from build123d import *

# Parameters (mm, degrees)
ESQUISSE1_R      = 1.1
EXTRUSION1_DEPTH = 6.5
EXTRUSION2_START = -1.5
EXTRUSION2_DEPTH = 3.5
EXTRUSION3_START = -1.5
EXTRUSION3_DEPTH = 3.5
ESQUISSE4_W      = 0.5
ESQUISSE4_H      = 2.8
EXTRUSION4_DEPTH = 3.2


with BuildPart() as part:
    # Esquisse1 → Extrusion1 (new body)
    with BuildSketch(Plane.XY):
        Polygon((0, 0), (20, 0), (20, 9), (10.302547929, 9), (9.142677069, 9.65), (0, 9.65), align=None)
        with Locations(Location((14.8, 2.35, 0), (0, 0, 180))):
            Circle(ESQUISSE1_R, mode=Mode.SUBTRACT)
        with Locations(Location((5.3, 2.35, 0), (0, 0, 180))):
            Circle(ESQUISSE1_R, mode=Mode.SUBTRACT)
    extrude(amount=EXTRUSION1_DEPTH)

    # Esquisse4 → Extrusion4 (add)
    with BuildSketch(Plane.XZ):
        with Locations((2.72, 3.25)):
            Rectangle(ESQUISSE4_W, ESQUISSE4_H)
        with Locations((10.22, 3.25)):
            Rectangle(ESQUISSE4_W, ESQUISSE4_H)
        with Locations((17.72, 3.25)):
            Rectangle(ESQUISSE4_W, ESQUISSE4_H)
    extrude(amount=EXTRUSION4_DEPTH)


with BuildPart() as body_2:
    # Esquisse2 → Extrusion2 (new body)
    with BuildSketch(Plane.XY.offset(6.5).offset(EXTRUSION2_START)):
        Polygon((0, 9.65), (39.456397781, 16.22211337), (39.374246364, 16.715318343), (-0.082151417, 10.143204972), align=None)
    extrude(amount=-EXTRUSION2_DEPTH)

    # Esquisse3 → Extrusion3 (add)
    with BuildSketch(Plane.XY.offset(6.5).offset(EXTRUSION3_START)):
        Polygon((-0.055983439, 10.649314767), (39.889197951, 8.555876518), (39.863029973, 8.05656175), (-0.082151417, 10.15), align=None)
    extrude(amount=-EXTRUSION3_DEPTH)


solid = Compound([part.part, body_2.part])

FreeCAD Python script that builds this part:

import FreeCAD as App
import Part
import Sketcher

V = App.Vector
Q = App.Units.Quantity

doc = App.newDocument("Part")
body = doc.addObject("PartDesign::Body", "Body")

# Sketch on XY plane
sketch1 = body.newObject("Sketcher::SketchObject", "Sketch")
sketch1.AttachmentSupport = (doc.getObject("XY_Plane"), [""])
sketch1.MapMode = "FlatFace"
sketch1.addGeometry(Part.LineSegment(V(0, 0, 0), V(20, 0, 0)), False)
sketch1.addGeometry(Part.LineSegment(V(20, 0, 0), V(20, 9, 0)), False)
sketch1.addGeometry(Part.LineSegment(V(20, 9, 0), V(10.3, 9, 0)), False)
sketch1.addGeometry(Part.LineSegment(V(10.3, 9, 0), V(9.1, 9.7, 0)), False)
sketch1.addGeometry(Part.LineSegment(V(9.1, 9.7, 0), V(0, 9.7, 0)), False)
sketch1.addGeometry(Part.LineSegment(V(0, 9.7, 0), V(0, 0, 0)), False)
sketch1.addGeometry(Part.Circle(V(5.3, 2.4, 0), V(0, 0, 1), 1.1), False)
sketch1.addGeometry(Part.Circle(V(14.8, 2.4, 0), V(0, 0, 1), 1.1), False)
sketch1.addConstraint(Sketcher.Constraint("Coincident", 0, 2, 1, 1))
sketch1.addConstraint(Sketcher.Constraint("Coincident", 1, 2, 2, 1))
sketch1.addConstraint(Sketcher.Constraint("Coincident", 2, 2, 3, 1))
sketch1.addConstraint(Sketcher.Constraint("Coincident", 3, 2, 4, 1))
sketch1.addConstraint(Sketcher.Constraint("Coincident", 4, 2, 5, 1))
sketch1.addConstraint(Sketcher.Constraint("Coincident", 5, 2, 0, 1))
sketch1.addConstraint(Sketcher.Constraint("Horizontal", 0))
sketch1.addConstraint(Sketcher.Constraint("Vertical", 1))
sketch1.addConstraint(Sketcher.Constraint("Horizontal", 2))
sketch1.addConstraint(Sketcher.Constraint("Horizontal", 4))
sketch1.addConstraint(Sketcher.Constraint("Vertical", 5))
sketch1.addConstraint(Sketcher.Constraint("Coincident", 5, 2, -1, 1))
sketch1.addConstraint(Sketcher.Constraint("Equal", 6, 7))
sketch1.addConstraint(Sketcher.Constraint("Horizontal", 6, 3, 7, 3))
sketch1.addConstraint(Sketcher.Constraint("Diameter", 6, Q("2.2 mm")))
sketch1.addConstraint(Sketcher.Constraint("DistanceX", 0, 1, 0, 2, Q("20 mm")))
sketch1.addConstraint(Sketcher.Constraint("DistanceY", 1, 1, 1, 2, Q("9 mm")))
sketch1.addConstraint(Sketcher.Constraint("DistanceY", 5, 2, 5, 1, Q("9.65 mm")))
sketch1.addConstraint(Sketcher.Constraint("DistanceX", -1, 1, 6, 3, Q("5.3 mm")))
sketch1.addConstraint(Sketcher.Constraint("DistanceX", -1, 1, 7, 3, Q("14.8 mm")))
sketch1.addConstraint(Sketcher.Constraint("DistanceY", 6, 3, 3, 2, Q("7.3 mm")))
sketch1.addConstraint(Sketcher.Constraint("DistanceX", 2, 2, 2, 1, Q("9.697452 mm")))
sketch1.addConstraint(Sketcher.Constraint("DistanceX", 4, 2, 4, 1, Q("9.142677 mm")))
pad1 = body.newObject("PartDesign::Pad", "Pad")
pad1.Profile = sketch1
pad1.Length = 6.5

# Sketch on XZ plane
sketch2 = body.newObject("Sketcher::SketchObject", "Sketch001")
sketch2.AttachmentSupport = (doc.getObject("XZ_Plane"), [""])
sketch2.MapMode = "FlatFace"
sketch2.addGeometry(Part.LineSegment(V(2.5, 4.7, 0), V(2.5, 1.9, 0)), False)
sketch2.addGeometry(Part.LineSegment(V(2.5, 1.9, 0), V(3, 1.9, 0)), False)
sketch2.addGeometry(Part.LineSegment(V(3, 1.9, 0), V(3, 4.7, 0)), False)
sketch2.addGeometry(Part.LineSegment(V(3, 4.7, 0), V(2.5, 4.7, 0)), False)
sketch2.addGeometry(Part.LineSegment(V(10, 4.7, 0), V(10, 1.9, 0)), False)
sketch2.addGeometry(Part.LineSegment(V(10, 1.9, 0), V(10.5, 1.9, 0)), False)
sketch2.addGeometry(Part.LineSegment(V(10.5, 1.9, 0), V(10.5, 4.7, 0)), False)
sketch2.addGeometry(Part.LineSegment(V(10.5, 4.7, 0), V(10, 4.7, 0)), False)
sketch2.addGeometry(Part.LineSegment(V(17.5, 4.7, 0), V(17.5, 1.9, 0)), False)
sketch2.addGeometry(Part.LineSegment(V(17.5, 1.9, 0), V(18, 1.9, 0)), False)
sketch2.addGeometry(Part.LineSegment(V(18, 1.9, 0), V(18, 4.7, 0)), False)
sketch2.addGeometry(Part.LineSegment(V(18, 4.7, 0), V(17.5, 4.7, 0)), False)
sketch2.addConstraint(Sketcher.Constraint("Coincident", 0, 2, 1, 1))
sketch2.addConstraint(Sketcher.Constraint("Coincident", 1, 2, 2, 1))
sketch2.addConstraint(Sketcher.Constraint("Coincident", 2, 2, 3, 1))
sketch2.addConstraint(Sketcher.Constraint("Coincident", 3, 2, 0, 1))
sketch2.addConstraint(Sketcher.Constraint("Coincident", 4, 2, 5, 1))
sketch2.addConstraint(Sketcher.Constraint("Coincident", 5, 2, 6, 1))
sketch2.addConstraint(Sketcher.Constraint("Coincident", 6, 2, 7, 1))
sketch2.addConstraint(Sketcher.Constraint("Coincident", 7, 2, 4, 1))
sketch2.addConstraint(Sketcher.Constraint("Coincident", 8, 2, 9, 1))
sketch2.addConstraint(Sketcher.Constraint("Coincident", 9, 2, 10, 1))
sketch2.addConstraint(Sketcher.Constraint("Coincident", 10, 2, 11, 1))
sketch2.addConstraint(Sketcher.Constraint("Coincident", 11, 2, 8, 1))
sketch2.addConstraint(Sketcher.Constraint("Vertical", 0))
sketch2.addConstraint(Sketcher.Constraint("Horizontal", 1))
sketch2.addConstraint(Sketcher.Constraint("Vertical", 2))
sketch2.addConstraint(Sketcher.Constraint("Horizontal", 3))
sketch2.addConstraint(Sketcher.Constraint("Vertical", 4))
sketch2.addConstraint(Sketcher.Constraint("Horizontal", 5))
sketch2.addConstraint(Sketcher.Constraint("Vertical", 6))
sketch2.addConstraint(Sketcher.Constraint("Horizontal", 7))
sketch2.addConstraint(Sketcher.Constraint("Vertical", 8))
sketch2.addConstraint(Sketcher.Constraint("Horizontal", 9))
sketch2.addConstraint(Sketcher.Constraint("Vertical", 10))
sketch2.addConstraint(Sketcher.Constraint("Horizontal", 11))
sketch2.addConstraint(Sketcher.Constraint("Horizontal", 1, 2, 4, 2))
sketch2.addConstraint(Sketcher.Constraint("Horizontal", 3, 2, 6, 2))
sketch2.addConstraint(Sketcher.Constraint("Horizontal", 5, 2, 8, 2))
sketch2.addConstraint(Sketcher.Constraint("Horizontal", 7, 2, 10, 2))
sketch2.addConstraint(Sketcher.Constraint("Equal", 3, 5))
sketch2.addConstraint(Sketcher.Constraint("Equal", 7, 9))
sketch2.addConstraint(Sketcher.Constraint("DistanceX", 1, 1, 1, 2, Q("0.5 mm")))
sketch2.addConstraint(Sketcher.Constraint("DistanceY", 0, 2, 0, 1, Q("2.8 mm")))
sketch2.addConstraint(Sketcher.Constraint("DistanceX", 1, 2, 4, 2, Q("7 mm")))
sketch2.addConstraint(Sketcher.Constraint("DistanceX", 5, 2, 8, 2, Q("7 mm")))
sketch2.addConstraint(Sketcher.Constraint("DistanceX", -1, 1, 0, 2, Q("2.47 mm")))
sketch2.addConstraint(Sketcher.Constraint("DistanceY", -1, 1, 0, 2, Q("1.85 mm")))
pad2 = body.newObject("PartDesign::Pad", "Pad001")
pad2.Profile = sketch2
pad2.Length = 3.2
body2 = doc.addObject("PartDesign::Body", "Body001")

# Sketch on XY plane
sketch3 = body2.newObject("Sketcher::SketchObject", "Sketch002")
sketch3.AttachmentSupport = (doc.getObject("XY_Plane001"), [""])
sketch3.MapMode = "FlatFace"
sketch3.AttachmentOffset = App.Placement(V(0, 0, 5), App.Rotation())
sketch3.addGeometry(Part.LineSegment(V(0, 9.65, 0), V(39.46, 16.22, 0)), False)
sketch3.addGeometry(Part.LineSegment(V(39.46, 16.22, 0), V(39.37, 16.72, 0)), False)
sketch3.addGeometry(Part.LineSegment(V(39.37, 16.72, 0), V(-0.08, 10.14, 0)), False)
sketch3.addGeometry(Part.LineSegment(V(-0.08, 10.14, 0), V(0, 9.65, 0)), False)
sketch3.addConstraint(Sketcher.Constraint("Coincident", 0, 2, 1, 1))
sketch3.addConstraint(Sketcher.Constraint("Coincident", 1, 2, 2, 1))
sketch3.addConstraint(Sketcher.Constraint("Coincident", 2, 2, 3, 1))
sketch3.addConstraint(Sketcher.Constraint("Coincident", 3, 2, 0, 1))
sketch3.addConstraint(Sketcher.Constraint("PointOnObject", 3, 2, -2))
sketch3.addConstraint(Sketcher.Constraint("Perpendicular", 0, 1))
sketch3.addConstraint(Sketcher.Constraint("Perpendicular", 1, 2))
sketch3.addConstraint(Sketcher.Constraint("Perpendicular", 2, 3))
sketch3.addConstraint(Sketcher.Constraint("Distance", 0, Q("40 mm")))
sketch3.addConstraint(Sketcher.Constraint("Distance", 1, Q("0.5 mm")))
sketch3.addConstraint(Sketcher.Constraint("DistanceY", -1, 1, 3, 2, Q("9.65 mm")))
sketch3.addConstraint(Sketcher.Constraint("DistanceY", -1, 1, 1, 2, Q("16.715318 mm")))
pad3 = body2.newObject("PartDesign::Pad", "Pad002")
pad3.Profile = sketch3
pad3.Length = 3.5
pad3.Reversed = True

# Sketch on XY plane
sketch4 = body2.newObject("Sketcher::SketchObject", "Sketch003")
sketch4.AttachmentSupport = (doc.getObject("XY_Plane001"), [""])
sketch4.MapMode = "FlatFace"
sketch4.AttachmentOffset = App.Placement(V(0, 0, 5), App.Rotation())
sketch4.addGeometry(Part.LineSegment(V(39.89, 8.56, 0), V(-0.06, 10.65, 0)), False)
sketch4.addGeometry(Part.LineSegment(V(-0.06, 10.65, 0), V(-0.08, 10.15, 0)), False)
sketch4.addGeometry(Part.LineSegment(V(-0.08, 10.15, 0), V(39.86, 8.06, 0)), False)
sketch4.addGeometry(Part.LineSegment(V(39.86, 8.06, 0), V(39.89, 8.56, 0)), False)
sketch4.addConstraint(Sketcher.Constraint("Coincident", 0, 2, 1, 1))
sketch4.addConstraint(Sketcher.Constraint("Coincident", 1, 2, 2, 1))
sketch4.addConstraint(Sketcher.Constraint("Coincident", 2, 2, 3, 1))
sketch4.addConstraint(Sketcher.Constraint("Coincident", 3, 2, 0, 1))
sketch4.addConstraint(Sketcher.Constraint("Perpendicular", 0, 1))
sketch4.addConstraint(Sketcher.Constraint("Perpendicular", 1, 2))
sketch4.addConstraint(Sketcher.Constraint("Perpendicular", 2, 3))
sketch4.addConstraint(Sketcher.Constraint("Angle", 0, Q("177 deg")))
sketch4.addConstraint(Sketcher.Constraint("Distance", 0, Q("40 mm")))
sketch4.addConstraint(Sketcher.Constraint("Distance", 1, Q("0.5 mm")))
sketch4.addConstraint(Sketcher.Constraint("DistanceY", -1, 1, 1, 2, Q("10.15 mm")))
sketch4.addConstraint(Sketcher.Constraint("DistanceX", 1, 2, -1, 1, Q("0.082151 mm")))
pad4 = body2.newObject("PartDesign::Pad", "Pad003")
pad4.Profile = sketch4
pad4.Length = 3.5
pad4.Reversed = True

doc.recompute()
